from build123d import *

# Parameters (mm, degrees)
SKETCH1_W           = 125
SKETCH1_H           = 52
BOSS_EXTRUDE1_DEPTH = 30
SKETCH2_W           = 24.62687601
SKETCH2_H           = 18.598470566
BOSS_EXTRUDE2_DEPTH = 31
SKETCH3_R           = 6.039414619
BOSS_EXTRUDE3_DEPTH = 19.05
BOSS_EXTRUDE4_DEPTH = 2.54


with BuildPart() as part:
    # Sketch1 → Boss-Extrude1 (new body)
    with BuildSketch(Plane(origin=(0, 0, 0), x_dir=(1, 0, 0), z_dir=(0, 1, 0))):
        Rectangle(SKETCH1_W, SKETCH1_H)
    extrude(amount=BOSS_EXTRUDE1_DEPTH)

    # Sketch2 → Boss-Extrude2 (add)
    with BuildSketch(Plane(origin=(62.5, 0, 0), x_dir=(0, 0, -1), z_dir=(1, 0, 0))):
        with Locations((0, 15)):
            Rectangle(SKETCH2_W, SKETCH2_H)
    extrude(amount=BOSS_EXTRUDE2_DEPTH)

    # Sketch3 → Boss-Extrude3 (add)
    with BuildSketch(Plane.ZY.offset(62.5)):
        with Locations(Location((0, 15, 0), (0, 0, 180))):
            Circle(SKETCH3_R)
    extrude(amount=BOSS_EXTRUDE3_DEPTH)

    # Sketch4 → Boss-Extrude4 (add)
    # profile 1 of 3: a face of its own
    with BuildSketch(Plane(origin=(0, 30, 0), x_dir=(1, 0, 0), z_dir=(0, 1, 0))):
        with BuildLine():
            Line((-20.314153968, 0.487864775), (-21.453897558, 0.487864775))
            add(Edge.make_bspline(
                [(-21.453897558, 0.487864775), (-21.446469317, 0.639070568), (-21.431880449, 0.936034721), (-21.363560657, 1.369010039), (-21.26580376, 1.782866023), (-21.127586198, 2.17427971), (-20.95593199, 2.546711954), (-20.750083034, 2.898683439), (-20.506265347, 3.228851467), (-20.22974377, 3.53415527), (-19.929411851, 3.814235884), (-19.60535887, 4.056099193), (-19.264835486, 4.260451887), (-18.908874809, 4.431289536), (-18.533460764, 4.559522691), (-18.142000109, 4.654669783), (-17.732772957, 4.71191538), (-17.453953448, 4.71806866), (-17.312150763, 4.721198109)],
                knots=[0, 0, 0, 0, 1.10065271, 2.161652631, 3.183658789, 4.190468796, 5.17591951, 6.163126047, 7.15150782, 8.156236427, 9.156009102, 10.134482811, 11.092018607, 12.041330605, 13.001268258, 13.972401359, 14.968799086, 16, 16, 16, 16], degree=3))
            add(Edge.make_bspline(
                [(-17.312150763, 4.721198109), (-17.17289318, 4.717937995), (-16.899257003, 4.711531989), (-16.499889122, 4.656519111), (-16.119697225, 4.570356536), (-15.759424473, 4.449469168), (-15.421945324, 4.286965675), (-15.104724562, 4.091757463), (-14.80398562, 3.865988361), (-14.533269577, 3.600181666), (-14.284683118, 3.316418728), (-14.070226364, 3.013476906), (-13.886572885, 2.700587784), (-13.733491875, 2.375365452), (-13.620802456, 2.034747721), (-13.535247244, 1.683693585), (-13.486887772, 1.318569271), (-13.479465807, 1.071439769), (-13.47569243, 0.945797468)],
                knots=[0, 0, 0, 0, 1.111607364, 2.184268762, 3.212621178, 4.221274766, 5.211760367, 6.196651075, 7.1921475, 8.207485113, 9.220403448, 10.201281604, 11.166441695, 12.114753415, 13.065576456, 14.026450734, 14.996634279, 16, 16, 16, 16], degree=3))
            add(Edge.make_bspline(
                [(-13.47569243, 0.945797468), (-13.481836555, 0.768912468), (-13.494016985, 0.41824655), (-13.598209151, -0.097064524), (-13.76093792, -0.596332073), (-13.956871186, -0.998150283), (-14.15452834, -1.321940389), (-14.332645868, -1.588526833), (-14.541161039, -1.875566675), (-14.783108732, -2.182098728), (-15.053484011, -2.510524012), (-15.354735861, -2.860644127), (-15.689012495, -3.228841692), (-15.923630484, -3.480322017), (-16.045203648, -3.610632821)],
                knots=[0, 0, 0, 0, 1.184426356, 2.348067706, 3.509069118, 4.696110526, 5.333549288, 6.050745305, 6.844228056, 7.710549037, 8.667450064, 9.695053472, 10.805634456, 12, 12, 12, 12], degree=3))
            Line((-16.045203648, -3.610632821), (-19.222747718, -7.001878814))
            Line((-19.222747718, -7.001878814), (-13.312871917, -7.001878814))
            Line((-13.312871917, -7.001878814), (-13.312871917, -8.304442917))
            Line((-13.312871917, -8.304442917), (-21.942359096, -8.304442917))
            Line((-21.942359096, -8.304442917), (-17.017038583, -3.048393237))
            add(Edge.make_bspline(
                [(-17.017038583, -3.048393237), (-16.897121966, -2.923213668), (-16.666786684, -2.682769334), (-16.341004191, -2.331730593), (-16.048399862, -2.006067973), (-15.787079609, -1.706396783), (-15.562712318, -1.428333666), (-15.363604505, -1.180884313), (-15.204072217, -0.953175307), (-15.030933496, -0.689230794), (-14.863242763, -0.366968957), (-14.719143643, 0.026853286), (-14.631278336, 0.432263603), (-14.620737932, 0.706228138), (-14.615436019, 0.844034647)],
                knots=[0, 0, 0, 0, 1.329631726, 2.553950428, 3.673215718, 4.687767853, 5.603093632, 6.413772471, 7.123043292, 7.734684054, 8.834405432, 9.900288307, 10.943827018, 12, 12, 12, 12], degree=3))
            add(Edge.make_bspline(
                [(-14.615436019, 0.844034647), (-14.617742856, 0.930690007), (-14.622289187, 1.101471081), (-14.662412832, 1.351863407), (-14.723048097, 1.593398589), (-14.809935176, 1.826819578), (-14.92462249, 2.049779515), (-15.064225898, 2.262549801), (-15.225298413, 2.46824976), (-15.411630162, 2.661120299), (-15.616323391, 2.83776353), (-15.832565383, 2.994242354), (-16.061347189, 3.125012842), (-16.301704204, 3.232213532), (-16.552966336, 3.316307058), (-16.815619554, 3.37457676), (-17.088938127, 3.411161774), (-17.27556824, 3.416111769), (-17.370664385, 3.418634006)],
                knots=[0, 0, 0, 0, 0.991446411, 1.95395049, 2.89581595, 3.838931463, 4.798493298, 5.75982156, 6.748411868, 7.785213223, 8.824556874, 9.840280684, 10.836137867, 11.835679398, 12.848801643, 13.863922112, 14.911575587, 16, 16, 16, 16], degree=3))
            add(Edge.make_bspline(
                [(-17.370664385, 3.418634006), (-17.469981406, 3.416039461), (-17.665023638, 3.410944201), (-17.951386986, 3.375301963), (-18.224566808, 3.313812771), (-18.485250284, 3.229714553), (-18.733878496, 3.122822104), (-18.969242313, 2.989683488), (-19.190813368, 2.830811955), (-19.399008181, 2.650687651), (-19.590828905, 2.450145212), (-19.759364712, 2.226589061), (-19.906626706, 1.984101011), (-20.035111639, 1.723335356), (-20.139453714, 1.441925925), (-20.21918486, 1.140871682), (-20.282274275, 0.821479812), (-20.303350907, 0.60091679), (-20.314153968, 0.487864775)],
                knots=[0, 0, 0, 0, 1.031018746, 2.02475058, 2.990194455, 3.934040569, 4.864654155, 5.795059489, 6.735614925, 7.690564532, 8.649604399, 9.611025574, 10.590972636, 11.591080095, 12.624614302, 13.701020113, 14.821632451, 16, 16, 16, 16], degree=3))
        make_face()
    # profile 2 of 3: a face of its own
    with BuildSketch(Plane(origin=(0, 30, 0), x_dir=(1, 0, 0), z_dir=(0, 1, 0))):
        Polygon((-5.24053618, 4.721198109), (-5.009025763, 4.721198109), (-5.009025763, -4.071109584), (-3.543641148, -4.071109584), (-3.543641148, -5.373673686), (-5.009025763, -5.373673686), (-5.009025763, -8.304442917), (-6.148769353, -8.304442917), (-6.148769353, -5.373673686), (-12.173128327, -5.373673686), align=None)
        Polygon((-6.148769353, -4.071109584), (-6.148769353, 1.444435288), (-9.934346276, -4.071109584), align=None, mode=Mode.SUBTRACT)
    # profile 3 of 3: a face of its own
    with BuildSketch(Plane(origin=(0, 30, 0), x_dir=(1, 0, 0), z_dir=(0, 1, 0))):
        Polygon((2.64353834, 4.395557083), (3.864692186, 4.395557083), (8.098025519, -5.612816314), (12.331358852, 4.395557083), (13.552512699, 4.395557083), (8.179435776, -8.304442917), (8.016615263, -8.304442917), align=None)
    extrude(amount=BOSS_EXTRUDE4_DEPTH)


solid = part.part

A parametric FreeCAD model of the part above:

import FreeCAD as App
import Part
import Sketcher
Q = App.Units.Quantity

doc = App.newDocument("Part")
body = doc.addObject("PartDesign::Body", "Body")

# Sketch on XZ plane
sketch1 = doc.addObject("Sketcher::SketchObject", "Sketch")
body.addObject(sketch1)
sketch1.AttachmentSupport = (doc.XZ_Plane, [""])
sketch1.MapMode = "FlatFace"
sketch1.addGeometry(Part.LineSegment(App.Vector(-62, -26, 0), App.Vector(-62, 26, 0)), False)
sketch1.addGeometry(Part.LineSegment(App.Vector(-62, 26, 0), App.Vector(62, 26, 0)), False)
sketch1.addGeometry(Part.LineSegment(App.Vector(62, 26, 0), App.Vector(62, -26, 0)), False)
sketch1.addGeometry(Part.LineSegment(App.Vector(62, -26, 0), App.Vector(-62, -26, 0)), False)
sketch1.addConstraint(Sketcher.Constraint("Coincident", 0, 2, 1, 1))
sketch1.addConstraint(Sketcher.Constraint("Coincident", 1, 2, 2, 1))
sketch1.addConstraint(Sketcher.Constraint("Coincident", 2, 2, 3, 1))
sketch1.addConstraint(Sketcher.Constraint("Coincident", 3, 2, 0, 1))
sketch1.addConstraint(Sketcher.Constraint("Vertical", 0))
sketch1.addConstraint(Sketcher.Constraint("Horizontal", 1))
sketch1.addConstraint(Sketcher.Constraint("Vertical", 2))
sketch1.addConstraint(Sketcher.Constraint("Horizontal", 3))
sketch1.addConstraint(Sketcher.Constraint("Symmetric", 0, 2, 2, 2, -1, 1))
sketch1.addConstraint(Sketcher.Constraint("DistanceX", 1, 1, 1, 2, Q("125 mm")))
sketch1.addConstraint(Sketcher.Constraint("DistanceY", 0, 1, 0, 2, Q("52 mm")))
pad1 = doc.addObject("PartDesign::Pad", "Pad")
body.addObject(pad1)
pad1.Profile = sketch1
pad1.Length = 30
pad1.Reversed = True

# Sketch on YZ plane
sketch2 = doc.addObject("Sketcher::SketchObject", "Sketch001")
body.addObject(sketch2)
sketch2.AttachmentSupport = (doc.YZ_Plane, [""])
sketch2.MapMode = "FlatFace"
sketch2.AttachmentOffset = App.Placement(App.Vector(0, 0, 62.5), App.Rotation())
sketch2.addGeometry(Part.LineSegment(App.Vector(24, 12, 0), App.Vector(6, 12, 0)), False)
sketch2.addGeometry(Part.LineSegment(App.Vector(6, 12, 0), App.Vector(6, -12, 0)), False)
sketch2.addGeometry(Part.LineSegment(App.Vector(6, -12, 0), App.Vector(24, -12, 0)), False)
sketch2.addGeometry(Part.LineSegment(App.Vector(24, -12, 0), App.Vector(24, 12, 0)), False)
sketch2.addConstraint(Sketcher.Constraint("Coincident", 0, 2, 1, 1))
sketch2.addConstraint(Sketcher.Constraint("Coincident", 1, 2, 2, 1))
sketch2.addConstraint(Sketcher.Constraint("Coincident", 2, 2, 3, 1))
sketch2.addConstraint(Sketcher.Constraint("Coincident", 3, 2, 0, 1))
sketch2.addConstraint(Sketcher.Constraint("Horizontal", 0))
sketch2.addConstraint(Sketcher.Constraint("Vertical", 1))
sketch2.addConstraint(Sketcher.Constraint("Horizontal", 2))
sketch2.addConstraint(Sketcher.Constraint("Vertical", 3))
sketch2.addConstraint(Sketcher.Constraint("DistanceX", 0, 2, 0, 1, Q("18.598471 mm")))
sketch2.addConstraint(Sketcher.Constraint("DistanceY", 1, 2, 1, 1, Q("24.626876 mm")))
sketch2.addConstraint(Sketcher.Constraint("DistanceY", -1, 1, 0, 2, Q("12.313438 mm")))
sketch2.addConstraint(Sketcher.Constraint("DistanceX", -1, 1, 0, 2, Q("5.700765 mm")))
pad2 = doc.addObject("PartDesign::Pad", "Pad001")
body.addObject(pad2)
pad2.Profile = sketch2
pad2.Length = 31

# Sketch on YZ plane
sketch3 = doc.addObject("Sketcher::SketchObject", "Sketch002")
body.addObject(sketch3)
sketch3.AttachmentSupport = (doc.YZ_Plane, [""])
sketch3.MapMode = "FlatFace"
sketch3.AttachmentOffset = App.Placement(App.Vector(0, 0, -62.5), App.Rotation())
sketch3.addGeometry(Part.Circle(App.Vector(15, 0, 0), App.Vector(0, 0, 1), 6), False)
sketch3.addConstraint(Sketcher.Constraint("PointOnObject", 0, 3, -1))
sketch3.addConstraint(Sketcher.Constraint("DistanceX", -1, 1, 0, 3, Q("15 mm")))
sketch3.addConstraint(Sketcher.Constraint("Diameter", 0, Q("12.078829 mm")))
pad3 = doc.addObject("PartDesign::Pad", "Pad002")
body.addObject(pad3)
pad3.Profile = sketch3
pad3.Length = 19.05
pad3.Reversed = True

# Sketch on XZ plane
sketch4 = doc.addObject("Sketcher::SketchObject", "Sketch003")
body.addObject(sketch4)
sketch4.AttachmentSupport = (doc.XZ_Plane, [""])
sketch4.MapMode = "FlatFace"
sketch4.AttachmentOffset = App.Placement(App.Vector(0, 0, -30), App.Rotation())
sketch4.addGeometry(Part.LineSegment(App.Vector(-21.453898, -0.487865, 0), App.Vector(-20.314154, -0.487865, 0)), False)
sketch4.addGeometry(Part.BSplineCurve([App.Vector(-17.370664, -3.418634, 0), App.Vector(-17.469981, -3.416039, 0), App.Vector(-17.665024, -3.410944, 0), App.Vector(-17.951387, -3.375302, 0), App.Vector(-18.224567, -3.313813, 0), App.Vector(-18.48525, -3.229715, 0), App.Vector(-18.733878, -3.122822, 0), App.Vector(-18.969242, -2.989683, 0), App.Vector(-19.190813, -2.830812, 0), App.Vector(-19.399008, -2.650688, 0), App.Vector(-19.590829, -2.450145, 0), App.Vector(-19.759365, -2.226589, 0), App.Vector(-19.906627, -1.984101, 0), App.Vector(-20.035112, -1.723335, 0), App.Vector(-20.139454, -1.441926, 0), App.Vector(-20.219185, -1.140872, 0), App.Vector(-20.282274, -0.82148, 0), App.Vector(-20.303351, -0.600917, 0), App.Vector(-20.314154, -0.487865, 0)], [4, 1, 1, 1, 1, 1, 1, 1, 1, 1, 1, 1, 1, 1, 1, 1, 4], [0, 1.031018746, 2.02475058, 2.990194455, 3.934040569, 4.864654155, 5.795059489, 6.735614925, 7.690564532, 8.649604399, 9.611025574, 10.590972636, 11.591080095, 12.624614302, 13.701020113, 14.821632451, 16], False, 3, [1, 1, 1, 1, 1, 1, 1, 1, 1, 1, 1, 1, 1, 1, 1, 1, 1, 1, 1], False), False)
sketch4.addGeometry(Part.BSplineCurve([App.Vector(-14.615436, -0.844035, 0), App.Vector(-14.617743, -0.93069, 0), App.Vector(-14.622289, -1.101471, 0), App.Vector(-14.662413, -1.351863, 0), App.Vector(-14.723048, -1.593399, 0), App.Vector(-14.809935, -1.82682, 0), App.Vector(-14.924622, -2.04978, 0), App.Vector(-15.064226, -2.26255, 0), App.Vector(-15.225298, -2.46825, 0), App.Vector(-15.41163, -2.66112, 0), App.Vector(-15.616323, -2.837764, 0), App.Vector(-15.832565, -2.994242, 0), App.Vector(-16.061347, -3.125013, 0), App.Vector(-16.301704, -3.232214, 0), App.Vector(-16.552966, -3.316307, 0), App.Vector(-16.81562, -3.374577, 0), App.Vector(-17.088938, -3.411162, 0), App.Vector(-17.275568, -3.416112, 0), App.Vector(-17.370664, -3.418634, 0)], [4, 1, 1, 1, 1, 1, 1, 1, 1, 1, 1, 1, 1, 1, 1, 1, 4], [0, 0.991446411, 1.95395049, 2.89581595, 3.838931463, 4.798493298, 5.75982156, 6.748411868, 7.785213223, 8.824556874, 9.840280684, 10.836137867, 11.835679398, 12.848801643, 13.863922112, 14.911575587, 16], False, 3, [1, 1, 1, 1, 1, 1, 1, 1, 1, 1, 1, 1, 1, 1, 1, 1, 1, 1, 1], False), False)
sketch4.addGeometry(Part.BSplineCurve([App.Vector(-17.017039, 3.048393, 0), App.Vector(-16.897122, 2.923214, 0), App.Vector(-16.666787, 2.682769, 0), App.Vector(-16.341004, 2.331731, 0), App.Vector(-16.0484, 2.006068, 0), App.Vector(-15.78708, 1.706397, 0), App.Vector(-15.562712, 1.428334, 0), App.Vector(-15.363605, 1.180884, 0), App.Vector(-15.204072, 0.953175, 0), App.Vector(-15.030933, 0.689231, 0), App.Vector(-14.863243, 0.366969, 0), App.Vector(-14.719144, -0.026853, 0), App.Vector(-14.631278, -0.432264, 0), App.Vector(-14.620738, -0.706228, 0), App.Vector(-14.615436, -0.844035, 0)], [4, 1, 1, 1, 1, 1, 1, 1, 1, 1, 1, 1, 4], [0, 1.329631726, 2.553950428, 3.673215718, 4.687767853, 5.603093632, 6.413772471, 7.123043292, 7.734684054, 8.834405432, 9.900288307, 10.943827018, 12], False, 3, [1, 1, 1, 1, 1, 1, 1, 1, 1, 1, 1, 1, 1, 1, 1], False), False)
sketch4.addGeometry(Part.LineSegment(App.Vector(-17.017039, 3.048393, 0), App.Vector(-21.942359, 8.304443, 0)), False)
sketch4.addGeometry(Part.LineSegment(App.Vector(-21.942359, 8.304443, 0), App.Vector(-13.312872, 8.304443, 0)), False)
sketch4.addGeometry(Part.LineSegment(App.Vector(-13.312872, 8.304443, 0), App.Vector(-13.312872, 7.001879, 0)), False)
sketch4.addGeometry(Part.LineSegment(App.Vector(-13.312872, 7.001879, 0), App.Vector(-19.222748, 7.001879, 0)), False)
sketch4.addGeometry(Part.LineSegment(App.Vector(-19.222748, 7.001879, 0), App.Vector(-16.045204, 3.610633, 0)), False)
sketch4.addGeometry(Part.BSplineCurve([App.Vector(-13.475692, -0.945797, 0), App.Vector(-13.481837, -0.768912, 0), App.Vector(-13.494017, -0.418247, 0), App.Vector(-13.598209, 0.097065, 0), App.Vector(-13.760938, 0.596332, 0), App.Vector(-13.956871, 0.99815, 0), App.Vector(-14.154528, 1.32194, 0), App.Vector(-14.332646, 1.588527, 0), App.Vector(-14.541161, 1.875567, 0), App.Vector(-14.783109, 2.182099, 0), App.Vector(-15.053484, 2.510524, 0), App.Vector(-15.354736, 2.860644, 0), App.Vector(-15.689012, 3.228842, 0), App.Vector(-15.92363, 3.480322, 0), App.Vector(-16.045204, 3.610633, 0)], [4, 1, 1, 1, 1, 1, 1, 1, 1, 1, 1, 1, 4], [0, 1.184426356, 2.348067706, 3.509069118, 4.696110526, 5.333549288, 6.050745305, 6.844228056, 7.710549037, 8.667450064, 9.695053472, 10.805634456, 12], False, 3, [1, 1, 1, 1, 1, 1, 1, 1, 1, 1, 1, 1, 1, 1, 1], False), False)
sketch4.addGeometry(Part.BSplineCurve([App.Vector(-17.312151, -4.721198, 0), App.Vector(-17.172893, -4.717938, 0), App.Vector(-16.899257, -4.711532, 0), App.Vector(-16.499889, -4.656519, 0), App.Vector(-16.119697, -4.570357, 0), App.Vector(-15.759424, -4.449469, 0), App.Vector(-15.421945, -4.286966, 0), App.Vector(-15.104725, -4.091757, 0), App.Vector(-14.803986, -3.865988, 0), App.Vector(-14.53327, -3.600182, 0), App.Vector(-14.284683, -3.316419, 0), App.Vector(-14.070226, -3.013477, 0), App.Vector(-13.886573, -2.700588, 0), App.Vector(-13.733492, -2.375365, 0), App.Vector(-13.620802, -2.034748, 0), App.Vector(-13.535247, -1.683694, 0), App.Vector(-13.486888, -1.318569, 0), App.Vector(-13.479466, -1.07144, 0), App.Vector(-13.475692, -0.945797, 0)], [4, 1, 1, 1, 1, 1, 1, 1, 1, 1, 1, 1, 1, 1, 1, 1, 4], [0, 1.111607364, 2.184268762, 3.212621178, 4.221274766, 5.211760367, 6.196651075, 7.1921475, 8.207485113, 9.220403448, 10.201281604, 11.166441695, 12.114753415, 13.065576456, 14.026450734, 14.996634279, 16], False, 3, [1, 1, 1, 1, 1, 1, 1, 1, 1, 1, 1, 1, 1, 1, 1, 1, 1, 1, 1], False), False)
sketch4.addGeometry(Part.BSplineCurve([App.Vector(-21.453898, -0.487865, 0), App.Vector(-21.446469, -0.639071, 0), App.Vector(-21.43188, -0.936035, 0), App.Vector(-21.363561, -1.36901, 0), App.Vector(-21.265804, -1.782866, 0), App.Vector(-21.127586, -2.17428, 0), App.Vector(-20.955932, -2.546712, 0), App.Vector(-20.750083, -2.898683, 0), App.Vector(-20.506265, -3.228851, 0), App.Vector(-20.229744, -3.534155, 0), App.Vector(-19.929412, -3.814236, 0), App.Vector(-19.605359, -4.056099, 0), App.Vector(-19.264835, -4.260452, 0), App.Vector(-18.908875, -4.43129, 0), App.Vector(-18.533461, -4.559523, 0), App.Vector(-18.142, -4.65467, 0), App.Vector(-17.732773, -4.711915, 0), App.Vector(-17.453953, -4.718069, 0), App.Vector(-17.312151, -4.721198, 0)], [4, 1, 1, 1, 1, 1, 1, 1, 1, 1, 1, 1, 1, 1, 1, 1, 4], [0, 1.10065271, 2.161652631, 3.183658789, 4.190468796, 5.17591951, 6.163126047, 7.15150782, 8.156236427, 9.156009102, 10.134482811, 11.092018607, 12.041330605, 13.001268258, 13.972401359, 14.968799086, 16], False, 3, [1, 1, 1, 1, 1, 1, 1, 1, 1, 1, 1, 1, 1, 1, 1, 1, 1, 1, 1], False), False)
sketch4.addGeometry(Part.LineSegment(App.Vector(-5.009026, -4.721198, 0), App.Vector(-5.240536, -4.721198, 0)), False)
sketch4.addGeometry(Part.LineSegment(App.Vector(-5.240536, -4.721198, 0), App.Vector(-12.173128, 5.373674, 0)), False)
sketch4.addGeometry(Part.LineSegment(App.Vector(-12.173128, 5.373674, 0), App.Vector(-6.148769, 5.373674, 0)), False)
sketch4.addGeometry(Part.LineSegment(App.Vector(-6.148769, 5.373674, 0), App.Vector(-6.148769, 8.304443, 0)), False)
sketch4.addGeometry(Part.LineSegment(App.Vector(-6.148769, 8.304443, 0), App.Vector(-5.009026, 8.304443, 0)), False)
sketch4.addGeometry(Part.LineSegment(App.Vector(-5.009026, 8.304443, 0), App.Vector(-5.009026, 5.373674, 0)), False)
sketch4.addGeometry(Part.LineSegment(App.Vector(-5.009026, 5.373674, 0), App.Vector(-3.543641, 5.373674, 0)), False)
sketch4.addGeometry(Part.LineSegment(App.Vector(-3.543641, 5.373674, 0), App.Vector(-3.543641, 4.07111, 0)), False)
sketch4.addGeometry(Part.LineSegment(App.Vector(-3.543641, 4.07111, 0), App.Vector(-5.009026, 4.07111, 0)), False)
sketch4.addGeometry(Part.LineSegment(App.Vector(-5.009026, 4.07111, 0), App.Vector(-5.009026, -4.721198, 0)), False)
sketch4.addGeometry(Part.LineSegment(App.Vector(-6.148769, 4.07111, 0), App.Vector(-9.934346, 4.07111, 0)), False)
sketch4.addGeometry(Part.LineSegment(App.Vector(-9.934346, 4.07111, 0), App.Vector(-6.148769, -1.444435, 0)), False)
sketch4.addGeometry(Part.LineSegment(App.Vector(-6.148769, -1.444435, 0), App.Vector(-6.148769, 4.07111, 0)), False)
sketch4.addGeometry(Part.LineSegment(App.Vector(3.864692, -4.395557, 0), App.Vector(2.643538, -4.395557, 0)), False)
sketch4.addGeometry(Part.LineSegment(App.Vector(2.643538, -4.395557, 0), App.Vector(8.016615, 8.304443, 0)), False)
sketch4.addGeometry(Part.LineSegment(App.Vector(8.016615, 8.304443, 0), App.Vector(8.179436, 8.304443, 0)), False)
sketch4.addGeometry(Part.LineSegment(App.Vector(8.179436, 8.304443, 0), App.Vector(13.552513, -4.395557, 0)), False)
sketch4.addGeometry(Part.LineSegment(App.Vector(13.552513, -4.395557, 0), App.Vector(12.331359, -4.395557, 0)), False)
sketch4.addGeometry(Part.LineSegment(App.Vector(12.331359, -4.395557, 0), App.Vector(8.098026, 5.612816, 0)), False)
sketch4.addGeometry(Part.LineSegment(App.Vector(8.098026, 5.612816, 0), App.Vector(3.864692, -4.395557, 0)), False)
sketch4.addConstraint(Sketcher.Constraint("Block", 1))
sketch4.addConstraint(Sketcher.Constraint("Block", 2))
sketch4.addConstraint(Sketcher.Constraint("Block", 3))
sketch4.addConstraint(Sketcher.Constraint("Block", 9))
sketch4.addConstraint(Sketcher.Constraint("Block", 10))
sketch4.addConstraint(Sketcher.Constraint("Block", 11))
sketch4.addConstraint(Sketcher.Constraint("Coincident", 0, 2, 1, 2))
sketch4.addConstraint(Sketcher.Constraint("Coincident", 3, 1, 4, 1))
sketch4.addConstraint(Sketcher.Constraint("Coincident", 4, 2, 5, 1))
sketch4.addConstraint(Sketcher.Constraint("Coincident", 5, 2, 6, 1))
sketch4.addConstraint(Sketcher.Constraint("Coincident", 6, 2, 7, 1))
sketch4.addConstraint(Sketcher.Constraint("Coincident", 7, 2, 8, 1))
sketch4.addConstraint(Sketcher.Constraint("Coincident", 8, 2, 9, 2))
sketch4.addConstraint(Sketcher.Constraint("Coincident", 11, 1, 0, 1))
sketch4.addConstraint(Sketcher.Constraint("Coincident", 12, 2, 13, 1))
sketch4.addConstraint(Sketcher.Constraint("Coincident", 13, 2, 14, 1))
sketch4.addConstraint(Sketcher.Constraint("Coincident", 14, 2, 15, 1))
sketch4.addConstraint(Sketcher.Constraint("Coincident", 15, 2, 16, 1))
sketch4.addConstraint(Sketcher.Constraint("Coincident", 16, 2, 17, 1))
sketch4.addConstraint(Sketcher.Constraint("Coincident", 17, 2, 18, 1))
sketch4.addConstraint(Sketcher.Constraint("Coincident", 18, 2, 19, 1))
sketch4.addConstraint(Sketcher.Constraint("Coincident", 19, 2, 20, 1))
sketch4.addConstraint(Sketcher.Constraint("Coincident", 20, 2, 21, 1))
sketch4.addConstraint(Sketcher.Constraint("Coincident", 21, 2, 12, 1))
sketch4.addConstraint(Sketcher.Constraint("Coincident", 22, 2, 23, 1))
sketch4.addConstraint(Sketcher.Constraint("Coincident", 23, 2, 24, 1))
sketch4.addConstraint(Sketcher.Constraint("Coincident", 24, 2, 22, 1))
sketch4.addConstraint(Sketcher.Constraint("Coincident", 25, 2, 26, 1))
sketch4.addConstraint(Sketcher.Constraint("Coincident", 26, 2, 27, 1))
sketch4.addConstraint(Sketcher.Constraint("Coincident", 27, 2, 28, 1))
sketch4.addConstraint(Sketcher.Constraint("Coincident", 28, 2, 29, 1))
sketch4.addConstraint(Sketcher.Constraint("Coincident", 29, 2, 30, 1))
sketch4.addConstraint(Sketcher.Constraint("Coincident", 30, 2, 31, 1))
sketch4.addConstraint(Sketcher.Constraint("Coincident", 31, 2, 25, 1))
sketch4.addConstraint(Sketcher.Constraint("Horizontal", 5))
sketch4.addConstraint(Sketcher.Constraint("Vertical", 6))
sketch4.addConstraint(Sketcher.Constraint("Horizontal", 7))
sketch4.addConstraint(Sketcher.Constraint("Horizontal", 12))
sketch4.addConstraint(Sketcher.Constraint("Horizontal", 14))
sketch4.addConstraint(Sketcher.Constraint("Vertical", 15))
sketch4.addConstraint(Sketcher.Constraint("Horizontal", 16))
sketch4.addConstraint(Sketcher.Constraint("Vertical", 17))
sketch4.addConstraint(Sketcher.Constraint("Horizontal", 18))
sketch4.addConstraint(Sketcher.Constraint("Vertical", 19))
sketch4.addConstraint(Sketcher.Constraint("Horizontal", 20))
sketch4.addConstraint(Sketcher.Constraint("Vertical", 21))
sketch4.addConstraint(Sketcher.Constraint("Horizontal", 22))
sketch4.addConstraint(Sketcher.Constraint("Vertical", 24))
sketch4.addConstraint(Sketcher.Constraint("Horizontal", 25))
sketch4.addConstraint(Sketcher.Constraint("Horizontal", 27))
sketch4.addConstraint(Sketcher.Constraint("Horizontal", 29))
sketch4.addConstraint(Sketcher.Constraint("DistanceY", 28, 2, 27, 2, Q("12.7 mm")))
sketch4.addConstraint(Sketcher.Constraint("DistanceX", 12, 2, 12, 1, Q("0.23151 mm")))
sketch4.addConstraint(Sketcher.Constraint("DistanceX", 14, 1, 14, 2, Q("6.024359 mm")))
sketch4.addConstraint(Sketcher.Constraint("DistanceX", 27, 1, 27, 2, Q("0.162821 mm")))
sketch4.addConstraint(Sketcher.Constraint("DistanceY", 15, 1, 15, 2, Q("2.930769 mm")))
sketch4.addConstraint(Sketcher.Constraint("DistanceY", 17, 2, 17, 1, Q("2.930769 mm")))
sketch4.addConstraint(Sketcher.Constraint("DistanceY", 12, 2, -1, 1, Q("4.721198 mm")))
sketch4.addConstraint(Sketcher.Constraint("Distance", 23, Q("6.689681 mm")))
sketch4.addConstraint(Sketcher.Constraint("Distance", 26, Q("13.78985 mm")))
sketch4.addConstraint(Sketcher.Constraint("Distance", 28, Q("13.78985 mm")))
sketch4.addConstraint(Sketcher.Constraint("Distance", 30, Q("10.86686 mm")))
sketch4.addConstraint(Sketcher.Constraint("Distance", 31, Q("10.86686 mm")))
sketch4.addConstraint(Sketcher.Constraint("DistanceX", 5, 1, 5, 2, Q("8.629487 mm")))
sketch4.addConstraint(Sketcher.Constraint("DistanceX", 7, 2, 7, 1, Q("5.909876 mm")))
sketch4.addConstraint(Sketcher.Constraint("DistanceX", 16, 1, 16, 2, Q("1.139744 mm")))
sketch4.addConstraint(Sketcher.Constraint("DistanceX", 18, 1, 18, 2, Q("1.465385 mm")))
sketch4.addConstraint(Sketcher.Constraint("DistanceX", 20, 2, 20, 1, Q("1.465385 mm")))
sketch4.addConstraint(Sketcher.Constraint("DistanceX", 22, 2, 22, 1, Q("3.785577 mm")))
sketch4.addConstraint(Sketcher.Constraint("DistanceX", 25, 2, 25, 1, Q("1.221154 mm")))
sketch4.addConstraint(Sketcher.Constraint("DistanceX", 29, 2, 29, 1, Q("1.221154 mm")))
sketch4.addConstraint(Sketcher.Constraint("DistanceY", 6, 2, 6, 1, Q("1.302564 mm")))
sketch4.addConstraint(Sketcher.Constraint("DistanceY", 19, 2, 19, 1, Q("1.302564 mm")))
sketch4.addConstraint(Sketcher.Constraint("DistanceY", 21, 2, 21, 1, Q("8.792308 mm")))
sketch4.addConstraint(Sketcher.Constraint("DistanceX", 4, 2, -1, 1, Q("21.942359 mm")))
sketch4.addConstraint(Sketcher.Constraint("DistanceY", -1, 1, 6, 2, Q("7.001879 mm")))
sketch4.addConstraint(Sketcher.Constraint("DistanceX", 13, 2, -1, 1, Q("12.173128 mm")))
sketch4.addConstraint(Sketcher.Constraint("DistanceY", -1, 1, 22, 2, Q("4.07111 mm")))
sketch4.addConstraint(Sketcher.Constraint("DistanceX", 23, 2, -1, 1, Q("6.148769 mm")))
sketch4.addConstraint(Sketcher.Constraint("DistanceX", -1, 1, 25, 2, Q("2.643538 mm")))
sketch4.addConstraint(Sketcher.Constraint("DistanceX", -1, 1, 29, 2, Q("12.331359 mm")))
sketch4.addConstraint(Sketcher.Constraint("DistanceY", 21, 2, 25, 2, Q("0.325641 mm")))
pad4 = doc.addObject("PartDesign::Pad", "Pad003")
body.addObject(pad4)
pad4.Profile = sketch4
pad4.Length = 2.54
pad4.Reversed = True

doc.recompute()
